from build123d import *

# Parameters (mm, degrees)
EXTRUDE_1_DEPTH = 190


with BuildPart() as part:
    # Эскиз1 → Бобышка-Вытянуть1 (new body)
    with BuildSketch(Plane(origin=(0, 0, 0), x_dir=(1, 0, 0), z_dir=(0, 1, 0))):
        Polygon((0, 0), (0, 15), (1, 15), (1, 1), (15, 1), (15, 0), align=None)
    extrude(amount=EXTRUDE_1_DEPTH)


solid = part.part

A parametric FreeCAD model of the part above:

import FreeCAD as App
import Part
import Sketcher
Q = App.Units.Quantity

doc = App.newDocument("Part")
body = doc.addObject("PartDesign::Body", "Body")

sketch1 = body.newObject("Sketcher::SketchObject", "Sketch")
sketch1.AttachmentSupport = (doc.getObject("XZ_Plane"), [""])
sketch1.MapMode = "FlatFace"
sketch1.addGeometry([
    Part.LineSegment(App.Vector(0, -15, 0), App.Vector(0, 0, 0)),
    Part.LineSegment(App.Vector(0, 0, 0), App.Vector(15, 0, 0)),
    Part.LineSegment(App.Vector(15, 0, 0), App.Vector(15, -1, 0)),
    Part.LineSegment(App.Vector(15, -1, 0), App.Vector(1, -1, 0)),
    Part.LineSegment(App.Vector(1, -1, 0), App.Vector(1, -15, 0)),
    Part.LineSegment(App.Vector(1, -15, 0), App.Vector(0, -15, 0)),
], False)
sketch1.addConstraint([
    Sketcher.Constraint("Coincident", 0, 2, 1, 1),
    Sketcher.Constraint("Coincident", 1, 2, 2, 1),
    Sketcher.Constraint("Coincident", 2, 2, 3, 1),
    Sketcher.Constraint("Coincident", 3, 2, 4, 1),
    Sketcher.Constraint("Coincident", 4, 2, 5, 1),
    Sketcher.Constraint("Coincident", 5, 2, 0, 1),
    Sketcher.Constraint("Vertical", 0),
    Sketcher.Constraint("Horizontal", 1),
    Sketcher.Constraint("Vertical", 2),
    Sketcher.Constraint("Horizontal", 3),
    Sketcher.Constraint("Vertical", 4),
    Sketcher.Constraint("Horizontal", 5),
    Sketcher.Constraint("Coincident", 0, 2, -1, 1),
    Sketcher.Constraint("Equal", 1, 0),
    Sketcher.Constraint("Equal", 5, 2),
    Sketcher.Constraint("DistanceX", 1, 1, 1, 2, Q("15 mm")),
    Sketcher.Constraint("DistanceX", 3, 2, 3, 1, Q("14 mm")),
])
pad1 = body.newObject("PartDesign::Pad", "Pad")
pad1.Profile = sketch1
pad1.Length = 190
pad1.Reversed = True

doc.recompute()
